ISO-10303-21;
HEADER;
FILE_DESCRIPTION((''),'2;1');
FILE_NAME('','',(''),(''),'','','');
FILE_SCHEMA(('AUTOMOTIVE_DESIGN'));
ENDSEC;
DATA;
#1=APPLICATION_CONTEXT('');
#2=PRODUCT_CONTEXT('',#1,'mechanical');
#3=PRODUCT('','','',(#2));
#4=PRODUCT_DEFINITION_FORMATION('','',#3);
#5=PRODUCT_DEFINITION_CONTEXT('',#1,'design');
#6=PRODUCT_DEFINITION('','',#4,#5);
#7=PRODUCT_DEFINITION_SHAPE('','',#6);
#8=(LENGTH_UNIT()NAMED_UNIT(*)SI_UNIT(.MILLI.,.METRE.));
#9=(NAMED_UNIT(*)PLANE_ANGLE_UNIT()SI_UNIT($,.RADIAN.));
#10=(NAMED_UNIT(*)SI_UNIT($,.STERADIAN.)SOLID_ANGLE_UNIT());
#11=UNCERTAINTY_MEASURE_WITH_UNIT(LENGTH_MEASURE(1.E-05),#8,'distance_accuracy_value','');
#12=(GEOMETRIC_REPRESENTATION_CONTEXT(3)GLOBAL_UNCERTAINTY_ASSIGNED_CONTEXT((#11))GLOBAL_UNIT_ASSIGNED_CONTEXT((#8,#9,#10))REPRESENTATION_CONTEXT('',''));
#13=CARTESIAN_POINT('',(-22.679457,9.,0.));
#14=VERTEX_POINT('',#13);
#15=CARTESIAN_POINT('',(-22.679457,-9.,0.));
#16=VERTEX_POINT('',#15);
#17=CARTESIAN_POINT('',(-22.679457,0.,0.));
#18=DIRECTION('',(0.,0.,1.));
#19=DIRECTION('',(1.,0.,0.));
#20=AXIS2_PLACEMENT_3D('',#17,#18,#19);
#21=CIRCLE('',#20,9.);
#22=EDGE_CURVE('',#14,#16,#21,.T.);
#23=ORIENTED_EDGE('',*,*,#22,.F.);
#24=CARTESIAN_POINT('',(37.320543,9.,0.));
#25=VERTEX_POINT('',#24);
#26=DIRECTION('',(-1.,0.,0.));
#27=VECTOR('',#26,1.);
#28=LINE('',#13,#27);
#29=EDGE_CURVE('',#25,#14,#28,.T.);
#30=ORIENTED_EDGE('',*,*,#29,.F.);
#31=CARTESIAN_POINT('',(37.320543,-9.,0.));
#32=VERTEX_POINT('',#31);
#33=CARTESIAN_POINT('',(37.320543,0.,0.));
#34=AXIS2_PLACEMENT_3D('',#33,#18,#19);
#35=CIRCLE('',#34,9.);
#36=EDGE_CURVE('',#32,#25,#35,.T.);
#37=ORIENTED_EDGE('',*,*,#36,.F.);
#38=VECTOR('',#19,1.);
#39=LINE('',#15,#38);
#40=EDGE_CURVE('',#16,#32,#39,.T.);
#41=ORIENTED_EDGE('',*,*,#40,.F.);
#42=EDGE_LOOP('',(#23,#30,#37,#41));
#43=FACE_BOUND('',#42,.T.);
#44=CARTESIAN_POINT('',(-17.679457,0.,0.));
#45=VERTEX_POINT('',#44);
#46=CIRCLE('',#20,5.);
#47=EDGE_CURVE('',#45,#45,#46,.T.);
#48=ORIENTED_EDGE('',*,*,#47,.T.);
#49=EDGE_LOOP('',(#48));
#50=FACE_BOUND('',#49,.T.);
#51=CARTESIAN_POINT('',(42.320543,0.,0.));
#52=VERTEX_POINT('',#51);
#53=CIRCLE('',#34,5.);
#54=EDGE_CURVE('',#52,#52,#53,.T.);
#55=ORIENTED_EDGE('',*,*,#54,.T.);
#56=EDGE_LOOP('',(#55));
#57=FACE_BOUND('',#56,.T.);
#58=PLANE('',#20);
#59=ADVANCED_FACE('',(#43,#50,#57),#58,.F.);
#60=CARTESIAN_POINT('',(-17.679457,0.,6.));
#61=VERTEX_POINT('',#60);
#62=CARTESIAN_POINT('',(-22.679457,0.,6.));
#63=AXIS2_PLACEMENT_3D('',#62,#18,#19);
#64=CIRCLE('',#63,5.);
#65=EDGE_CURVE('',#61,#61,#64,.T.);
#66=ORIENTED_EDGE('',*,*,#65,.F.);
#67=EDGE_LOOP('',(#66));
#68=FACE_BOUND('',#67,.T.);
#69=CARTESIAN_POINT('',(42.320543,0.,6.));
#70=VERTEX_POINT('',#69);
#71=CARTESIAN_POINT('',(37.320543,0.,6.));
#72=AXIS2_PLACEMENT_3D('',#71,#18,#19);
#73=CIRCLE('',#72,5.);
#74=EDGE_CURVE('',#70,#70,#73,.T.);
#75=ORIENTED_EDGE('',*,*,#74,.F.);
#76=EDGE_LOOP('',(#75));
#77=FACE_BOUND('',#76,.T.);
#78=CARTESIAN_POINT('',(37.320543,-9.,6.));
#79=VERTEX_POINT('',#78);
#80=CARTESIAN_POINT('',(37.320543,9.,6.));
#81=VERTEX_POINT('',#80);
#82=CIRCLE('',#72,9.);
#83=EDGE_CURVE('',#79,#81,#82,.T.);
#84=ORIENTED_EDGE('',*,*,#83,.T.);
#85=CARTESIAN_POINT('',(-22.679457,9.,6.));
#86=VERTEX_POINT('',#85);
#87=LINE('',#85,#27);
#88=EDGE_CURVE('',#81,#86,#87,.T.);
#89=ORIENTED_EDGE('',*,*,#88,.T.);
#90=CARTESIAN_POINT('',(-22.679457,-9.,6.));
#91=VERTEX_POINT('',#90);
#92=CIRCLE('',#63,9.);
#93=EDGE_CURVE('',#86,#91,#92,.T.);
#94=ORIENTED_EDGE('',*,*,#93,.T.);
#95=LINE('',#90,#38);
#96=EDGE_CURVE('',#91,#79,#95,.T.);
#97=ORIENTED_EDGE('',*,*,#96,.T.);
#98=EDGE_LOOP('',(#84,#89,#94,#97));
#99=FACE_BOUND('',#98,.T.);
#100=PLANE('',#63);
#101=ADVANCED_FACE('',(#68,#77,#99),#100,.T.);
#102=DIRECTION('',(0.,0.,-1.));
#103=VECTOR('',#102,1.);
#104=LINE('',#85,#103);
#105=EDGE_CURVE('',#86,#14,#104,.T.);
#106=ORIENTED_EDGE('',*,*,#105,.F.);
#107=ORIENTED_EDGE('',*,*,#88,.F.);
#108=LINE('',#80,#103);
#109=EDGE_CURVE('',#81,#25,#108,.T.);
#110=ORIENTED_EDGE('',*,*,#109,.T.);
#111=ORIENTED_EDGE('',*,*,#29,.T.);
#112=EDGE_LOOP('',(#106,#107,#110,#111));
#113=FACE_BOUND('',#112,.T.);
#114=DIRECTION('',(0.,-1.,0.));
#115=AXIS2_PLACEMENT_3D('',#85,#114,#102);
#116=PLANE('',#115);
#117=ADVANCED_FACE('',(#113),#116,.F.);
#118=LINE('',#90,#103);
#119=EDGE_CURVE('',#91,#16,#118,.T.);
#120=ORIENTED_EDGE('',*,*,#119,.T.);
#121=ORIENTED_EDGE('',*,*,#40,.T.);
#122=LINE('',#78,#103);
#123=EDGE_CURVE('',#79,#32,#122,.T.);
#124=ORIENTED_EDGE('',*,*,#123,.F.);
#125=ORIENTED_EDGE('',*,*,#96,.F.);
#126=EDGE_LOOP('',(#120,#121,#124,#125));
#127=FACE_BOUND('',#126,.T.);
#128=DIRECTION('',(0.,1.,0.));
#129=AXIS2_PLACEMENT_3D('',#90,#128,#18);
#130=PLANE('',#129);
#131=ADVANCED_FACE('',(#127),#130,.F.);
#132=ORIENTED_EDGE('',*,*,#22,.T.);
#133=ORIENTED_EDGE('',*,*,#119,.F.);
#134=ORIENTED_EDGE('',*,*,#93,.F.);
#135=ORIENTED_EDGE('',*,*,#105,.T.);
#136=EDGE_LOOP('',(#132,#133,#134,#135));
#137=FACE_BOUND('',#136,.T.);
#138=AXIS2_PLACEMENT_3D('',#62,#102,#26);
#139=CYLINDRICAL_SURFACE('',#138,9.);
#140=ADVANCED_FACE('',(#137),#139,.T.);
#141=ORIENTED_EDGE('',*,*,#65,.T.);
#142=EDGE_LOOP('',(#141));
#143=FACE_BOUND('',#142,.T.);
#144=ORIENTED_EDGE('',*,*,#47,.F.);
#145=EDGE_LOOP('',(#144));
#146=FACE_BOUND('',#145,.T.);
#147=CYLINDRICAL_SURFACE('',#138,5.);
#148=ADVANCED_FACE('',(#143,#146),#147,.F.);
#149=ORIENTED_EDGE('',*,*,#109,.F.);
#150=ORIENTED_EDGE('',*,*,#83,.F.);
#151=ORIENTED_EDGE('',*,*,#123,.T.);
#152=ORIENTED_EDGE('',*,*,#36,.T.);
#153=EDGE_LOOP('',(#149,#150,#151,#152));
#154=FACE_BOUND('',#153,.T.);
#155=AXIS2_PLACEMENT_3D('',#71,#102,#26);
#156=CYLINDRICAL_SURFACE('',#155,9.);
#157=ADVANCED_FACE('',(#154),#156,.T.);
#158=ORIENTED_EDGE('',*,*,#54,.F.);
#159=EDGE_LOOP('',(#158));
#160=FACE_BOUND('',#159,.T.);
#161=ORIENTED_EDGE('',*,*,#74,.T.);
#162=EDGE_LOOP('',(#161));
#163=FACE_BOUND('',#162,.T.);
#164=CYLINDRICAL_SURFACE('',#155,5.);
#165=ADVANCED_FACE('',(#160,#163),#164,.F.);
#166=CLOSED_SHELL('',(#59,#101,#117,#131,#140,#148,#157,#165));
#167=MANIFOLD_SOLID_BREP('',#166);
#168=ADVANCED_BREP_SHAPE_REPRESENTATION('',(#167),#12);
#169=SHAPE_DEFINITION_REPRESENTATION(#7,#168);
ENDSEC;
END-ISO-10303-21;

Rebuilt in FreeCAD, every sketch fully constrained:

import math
import FreeCAD as App
import Part
import Sketcher

V = App.Vector
Q = App.Units.Quantity

doc = App.newDocument("Part")
body = doc.addObject("PartDesign::Body", "Body")

# Sketch on XY plane
sketch1 = body.newObject("Sketcher::SketchObject", "Sketch")
sketch1.AttachmentSupport = (doc.getObject("XY_Plane"), [""])
sketch1.MapMode = "FlatFace"
sketch1.addGeometry([
    Part.LineSegment(V(37, 9, 0), V(-23, 9, 0)),  # 0
    Part.ArcOfCircle(Part.Circle(V(-23, 0, 0), V(0, 0, 1), 9), math.radians(90), math.radians(270)),  # 1
    Part.LineSegment(V(-23, -9, 0), V(37, -9, 0)),  # 2
    Part.ArcOfCircle(Part.Circle(V(37, 0, 0), V(0, 0, 1), 9), math.radians(-90), math.radians(90)),  # 3
    Part.Circle(V(37, 0, 0), V(0, 0, 1), 5),  # 4
    Part.Circle(V(-23, 0, 0), V(0, 0, 1), 5),  # 5
], False)
sketch1.addConstraint([
    Sketcher.Constraint("Tangent", 0, 2, 1, 1),
    Sketcher.Constraint("Tangent", 1, 2, 2, 1),
    Sketcher.Constraint("Tangent", 2, 2, 3, 1),
    Sketcher.Constraint("Tangent", 3, 2, 0, 1),
    Sketcher.Constraint("Horizontal", 0),
    Sketcher.Constraint("Horizontal", 2),
    Sketcher.Constraint("Coincident", 4, 3, 3, 3),
    Sketcher.Constraint("Coincident", 5, 3, 1, 3),
    Sketcher.Constraint("Equal", 4, 5),
    Sketcher.Constraint("PointOnObject", 1, 3, -1),
    Sketcher.Constraint("Diameter", 4, Q("10 mm")),
    Sketcher.Constraint("Radius", 1, Q("9 mm")),
    Sketcher.Constraint("DistanceX", 0, 2, 0, 1, Q("60 mm")),
    Sketcher.Constraint("DistanceX", 1, 3, -1, 1, Q("22.679457 mm")),
])
pad1 = body.newObject("PartDesign::Pad", "Pad")
pad1.Profile = sketch1
pad1.Length = 6

doc.recompute()
